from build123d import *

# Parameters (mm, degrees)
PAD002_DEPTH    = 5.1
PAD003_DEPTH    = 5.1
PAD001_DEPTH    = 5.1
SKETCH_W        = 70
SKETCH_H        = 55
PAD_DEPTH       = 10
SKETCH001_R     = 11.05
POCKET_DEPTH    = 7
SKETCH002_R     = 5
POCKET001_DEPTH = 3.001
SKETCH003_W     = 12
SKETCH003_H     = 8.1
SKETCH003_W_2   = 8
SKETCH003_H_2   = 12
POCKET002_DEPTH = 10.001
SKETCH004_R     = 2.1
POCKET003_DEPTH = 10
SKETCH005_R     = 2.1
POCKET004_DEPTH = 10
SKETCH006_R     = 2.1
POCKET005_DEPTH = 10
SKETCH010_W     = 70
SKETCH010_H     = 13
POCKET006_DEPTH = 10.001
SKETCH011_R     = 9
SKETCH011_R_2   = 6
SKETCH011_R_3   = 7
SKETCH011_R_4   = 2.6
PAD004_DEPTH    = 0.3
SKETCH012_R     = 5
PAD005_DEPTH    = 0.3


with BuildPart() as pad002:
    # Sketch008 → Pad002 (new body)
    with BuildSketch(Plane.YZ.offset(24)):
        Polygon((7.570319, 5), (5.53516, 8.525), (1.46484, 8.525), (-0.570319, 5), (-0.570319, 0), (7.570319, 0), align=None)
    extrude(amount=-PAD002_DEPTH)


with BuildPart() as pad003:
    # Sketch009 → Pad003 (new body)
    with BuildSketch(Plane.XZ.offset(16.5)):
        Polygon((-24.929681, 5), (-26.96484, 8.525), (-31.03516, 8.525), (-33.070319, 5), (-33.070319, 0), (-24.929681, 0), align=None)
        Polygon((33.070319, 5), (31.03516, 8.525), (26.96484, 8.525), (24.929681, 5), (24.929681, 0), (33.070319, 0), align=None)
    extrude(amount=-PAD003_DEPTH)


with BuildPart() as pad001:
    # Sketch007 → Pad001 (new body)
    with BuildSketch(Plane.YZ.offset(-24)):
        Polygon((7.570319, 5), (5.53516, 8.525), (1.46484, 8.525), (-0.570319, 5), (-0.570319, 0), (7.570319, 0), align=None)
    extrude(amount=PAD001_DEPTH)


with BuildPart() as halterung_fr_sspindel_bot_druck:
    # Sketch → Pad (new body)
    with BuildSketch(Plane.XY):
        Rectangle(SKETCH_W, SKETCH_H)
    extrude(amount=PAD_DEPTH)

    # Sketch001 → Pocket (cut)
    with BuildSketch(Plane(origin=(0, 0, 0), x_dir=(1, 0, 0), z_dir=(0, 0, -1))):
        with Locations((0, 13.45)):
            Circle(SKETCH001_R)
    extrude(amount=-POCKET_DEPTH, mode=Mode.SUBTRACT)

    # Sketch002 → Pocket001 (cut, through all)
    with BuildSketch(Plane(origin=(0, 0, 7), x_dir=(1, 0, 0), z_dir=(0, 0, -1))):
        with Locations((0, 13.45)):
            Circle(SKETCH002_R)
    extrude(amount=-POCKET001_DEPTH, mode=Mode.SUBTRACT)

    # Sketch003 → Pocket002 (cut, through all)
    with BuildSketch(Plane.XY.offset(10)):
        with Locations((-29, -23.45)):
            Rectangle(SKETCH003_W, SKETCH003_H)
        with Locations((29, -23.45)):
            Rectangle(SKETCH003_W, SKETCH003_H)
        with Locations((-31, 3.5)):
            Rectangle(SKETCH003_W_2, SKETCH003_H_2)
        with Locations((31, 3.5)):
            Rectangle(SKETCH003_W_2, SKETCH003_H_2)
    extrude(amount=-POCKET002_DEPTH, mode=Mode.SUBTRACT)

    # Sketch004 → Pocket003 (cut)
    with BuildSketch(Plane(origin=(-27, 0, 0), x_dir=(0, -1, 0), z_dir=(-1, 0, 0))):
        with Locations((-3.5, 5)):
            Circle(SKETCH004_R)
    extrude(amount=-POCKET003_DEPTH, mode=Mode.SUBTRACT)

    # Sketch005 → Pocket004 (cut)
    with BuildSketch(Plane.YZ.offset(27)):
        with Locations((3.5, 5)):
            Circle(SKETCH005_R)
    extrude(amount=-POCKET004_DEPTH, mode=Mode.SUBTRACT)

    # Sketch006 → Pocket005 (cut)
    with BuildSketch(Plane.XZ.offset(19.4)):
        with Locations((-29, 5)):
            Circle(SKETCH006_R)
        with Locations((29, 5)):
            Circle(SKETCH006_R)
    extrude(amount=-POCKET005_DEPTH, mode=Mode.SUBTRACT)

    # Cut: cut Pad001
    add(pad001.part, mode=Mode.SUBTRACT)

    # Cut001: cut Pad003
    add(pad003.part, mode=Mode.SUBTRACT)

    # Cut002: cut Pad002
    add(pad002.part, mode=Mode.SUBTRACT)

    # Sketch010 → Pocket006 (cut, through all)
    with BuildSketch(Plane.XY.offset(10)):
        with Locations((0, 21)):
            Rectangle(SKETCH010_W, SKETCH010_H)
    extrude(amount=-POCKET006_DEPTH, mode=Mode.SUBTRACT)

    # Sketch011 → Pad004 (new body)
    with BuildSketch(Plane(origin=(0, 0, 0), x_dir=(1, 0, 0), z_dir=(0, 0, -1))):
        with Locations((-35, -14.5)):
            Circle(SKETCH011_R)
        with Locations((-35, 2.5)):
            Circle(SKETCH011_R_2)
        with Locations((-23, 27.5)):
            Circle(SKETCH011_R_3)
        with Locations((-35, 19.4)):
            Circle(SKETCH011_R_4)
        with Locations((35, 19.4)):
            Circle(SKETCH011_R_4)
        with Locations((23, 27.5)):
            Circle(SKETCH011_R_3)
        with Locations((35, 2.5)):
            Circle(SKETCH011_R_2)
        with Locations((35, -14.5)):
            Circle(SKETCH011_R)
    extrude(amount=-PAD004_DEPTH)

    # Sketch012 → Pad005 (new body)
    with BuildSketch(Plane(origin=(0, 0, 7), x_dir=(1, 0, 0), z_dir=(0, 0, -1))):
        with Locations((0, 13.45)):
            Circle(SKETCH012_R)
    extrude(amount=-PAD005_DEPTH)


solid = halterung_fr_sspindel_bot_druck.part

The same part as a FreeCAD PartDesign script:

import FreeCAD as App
import Part
import Sketcher
Q = App.Units.Quantity


def add_polygon(sketch, points):
    """Adds a closed chain of lines whose ends are joined by coincident constraints."""
    first, n = sketch.GeometryCount, len(points)
    for a, b in zip(points, points[1:] + points[:1]):
        sketch.addGeometry(Part.LineSegment(App.Vector(*a, 0), App.Vector(*b, 0)), False)
    for i in range(n):
        sketch.addConstraint(Sketcher.Constraint("Coincident", first + i, 2, first + (i + 1) % n, 1))

doc = App.newDocument("Part")
body = doc.addObject("PartDesign::Body", "Body")

sketch1 = body.newObject("Sketcher::SketchObject", "Sketch")
sketch1.AttachmentSupport = (doc.getObject("YZ_Plane"), [""])
sketch1.MapMode = "FlatFace"
sketch1.AttachmentOffset = App.Placement(App.Vector(0, 0, 24), App.Rotation())
add_polygon(sketch1, [(7.6, 5), (5.5, 8.5), (1.5, 8.5), (-0.6, 5), (-0.6, 0), (7.6, 0)])
sketch1.addConstraint([
    Sketcher.Constraint("Horizontal", 1),
    Sketcher.Constraint("Vertical", 3),
    Sketcher.Constraint("Horizontal", 4),
    Sketcher.Constraint("Vertical", 5),
    Sketcher.Constraint("PointOnObject", 3, 2, -1),
    Sketcher.Constraint("Horizontal", 2, 2, 5, 2),
    Sketcher.Constraint("Equal", 0, 2),
    Sketcher.Constraint("DistanceY", 3, 2, 3, 1, 5.0),
    Sketcher.Constraint("Angle", 0, Q("119.999991 deg")),
    Sketcher.Constraint("DistanceY", -1, 1, 0, 2, 8.525),
    Sketcher.Constraint("DistanceX", 1, 2, 1, 1, 4.07032),
    Sketcher.Constraint("DistanceX", -1, 1, 0, 2, 5.53516),
])
pad1 = body.newObject("PartDesign::Pad", "Pad")
pad1.Profile = sketch1
pad1.Length = 5.1
pad1.Reversed = True
body2 = doc.addObject("PartDesign::Body", "Body001")
body2.AllowCompound = True

sketch2 = body2.newObject("Sketcher::SketchObject", "Sketch001")
sketch2.AttachmentSupport = (doc.getObject("XZ_Plane001"), [""])
sketch2.MapMode = "FlatFace"
sketch2.AttachmentOffset = App.Placement(App.Vector(0, 0, 16.5), App.Rotation())
add_polygon(sketch2, [(-24.9, 5), (-27, 8.5), (-31, 8.5), (-33.1, 5), (-33.1, 0), (-24.9, 0)])
add_polygon(sketch2, [(33.1, 5), (31, 8.5), (27, 8.5), (24.9, 5), (24.9, 0), (33.1, 0)])
sketch2.addConstraint([
    Sketcher.Constraint("Horizontal", 1),
    Sketcher.Constraint("Vertical", 3),
    Sketcher.Constraint("Horizontal", 4),
    Sketcher.Constraint("Vertical", 5),
    Sketcher.Constraint("Horizontal", 7),
    Sketcher.Constraint("Vertical", 9),
    Sketcher.Constraint("Horizontal", 10),
    Sketcher.Constraint("Vertical", 11),
    Sketcher.Constraint("Symmetric", 4, 2, 9, 2, -1, 1),
    Sketcher.Constraint("Symmetric", 1, 2, 6, 2, -2),
    Sketcher.Constraint("Symmetric", 3, 2, 10, 2, -2),
    Sketcher.Constraint("Parallel", 0, 6),
    Sketcher.Constraint("Parallel", 2, 8),
    Sketcher.Constraint("Horizontal", 2, 2, 5, 2),
    Sketcher.Constraint("Horizontal", 5, 2, 8, 2),
    Sketcher.Constraint("Horizontal", 8, 2, 11, 2),
    Sketcher.Constraint("DistanceY", 3, 2, 3, 1, 5.0),
    Sketcher.Constraint("Angle", 0, Q("119.999991 deg")),
    Sketcher.Constraint("DistanceX", 0, 2, 6, 2, 58.0),
    Sketcher.Constraint("DistanceY", -1, 1, 0, 2, 8.525),
    Sketcher.Constraint("DistanceX", 1, 2, 1, 1, 4.07032),
])
pad2 = body2.newObject("PartDesign::Pad", "Pad001")
pad2.Profile = sketch2
pad2.Length = 5.1
pad2.Reversed = True
body3 = doc.addObject("PartDesign::Body", "Body002")

sketch3 = body3.newObject("Sketcher::SketchObject", "Sketch002")
sketch3.AttachmentSupport = (doc.getObject("YZ_Plane002"), [""])
sketch3.MapMode = "FlatFace"
sketch3.AttachmentOffset = App.Placement(App.Vector(0, 0, -24), App.Rotation())
add_polygon(sketch3, [(7.6, 5), (5.5, 8.5), (1.5, 8.5), (-0.6, 5), (-0.6, 0), (7.6, 0)])
sketch3.addConstraint([
    Sketcher.Constraint("Horizontal", 1),
    Sketcher.Constraint("Vertical", 3),
    Sketcher.Constraint("Horizontal", 4),
    Sketcher.Constraint("Vertical", 5),
    Sketcher.Constraint("PointOnObject", 3, 2, -1),
    Sketcher.Constraint("Horizontal", 2, 2, 5, 2),
    Sketcher.Constraint("Equal", 0, 2),
    Sketcher.Constraint("DistanceY", 3, 2, 3, 1, 5.0),
    Sketcher.Constraint("Angle", 0, Q("119.999991 deg")),
    Sketcher.Constraint("DistanceY", -1, 1, 0, 2, 8.525),
    Sketcher.Constraint("DistanceX", 1, 2, 1, 1, 4.07032),
    Sketcher.Constraint("DistanceX", -1, 1, 0, 2, 5.53516),
])
pad3 = body3.newObject("PartDesign::Pad", "Pad002")
pad3.Profile = sketch3
pad3.Length = 5.1
body4 = doc.addObject("PartDesign::Body", "Body003")

sketch4 = body4.newObject("Sketcher::SketchObject", "Sketch003")
sketch4.AttachmentSupport = (doc.getObject("XY_Plane003"), [""])
sketch4.MapMode = "FlatFace"
add_polygon(sketch4, [(-35, 28), (-35, -28), (35, -28), (35, 28)])
sketch4.addConstraint([
    Sketcher.Constraint("Vertical", 0),
    Sketcher.Constraint("Horizontal", 1),
    Sketcher.Constraint("Vertical", 2),
    Sketcher.Constraint("Horizontal", 3),
    Sketcher.Constraint("Symmetric", 0, 2, 2, 2, -1, 1),
    Sketcher.Constraint("DistanceX", 1, 1, 1, 2, 70.0),
    Sketcher.Constraint("DistanceY", 0, 2, 0, 1, 55.0),
])
pad4 = body4.newObject("PartDesign::Pad", "Pad003")
pad4.Profile = sketch4
pad4.Length = 10

sketch5 = body4.newObject("Sketcher::SketchObject", "Sketch004")
sketch5.AttachmentSupport = (doc.getObject("XY_Plane003"), [""])
sketch5.MapMode = "FlatFace"
sketch5.addGeometry(Part.Circle(App.Vector(0, -13, 0), App.Vector(0, 0, 1), 11), False)
sketch5.addConstraint([
    Sketcher.Constraint("PointOnObject", 0, 3, -2),
    Sketcher.Constraint("Diameter", 0, 22.1),
    Sketcher.Constraint("DistanceY", 0, 3, -1, 1, 13.45),
])
pocket1 = body4.newObject("PartDesign::Pocket", "Pocket")
pocket1.Profile = sketch5
pocket1.Length = 7
pocket1.Reversed = True

sketch6 = body4.newObject("Sketcher::SketchObject", "Sketch005")
sketch6.AttachmentSupport = (doc.getObject("XY_Plane003"), [""])
sketch6.MapMode = "FlatFace"
sketch6.AttachmentOffset = App.Placement(App.Vector(0, 0, 7), App.Rotation())
sketch6.addGeometry(Part.Circle(App.Vector(0, -13, 0), App.Vector(0, 0, 1), 5), False)
sketch6.addConstraint([
    Sketcher.Constraint("PointOnObject", 0, 3, -2),
    Sketcher.Constraint("Diameter", 0, 10.0),
    Sketcher.Constraint("DistanceY", 0, 3, -1, 1, 13.45),
])
pocket2 = body4.newObject("PartDesign::Pocket", "Pocket001")
pocket2.Profile = sketch6
pocket2.Type = "ThroughAll"
pocket2.Reversed = True

sketch7 = body4.newObject("Sketcher::SketchObject", "Sketch006")
sketch7.AttachmentSupport = (doc.getObject("XY_Plane003"), [""])
sketch7.MapMode = "FlatFace"
sketch7.AttachmentOffset = App.Placement(App.Vector(0, 0, 10), App.Rotation())
add_polygon(sketch7, [(-35, -19), (-35, -28), (-23, -28), (-23, -19)])
add_polygon(sketch7, [(23, -19), (23, -28), (35, -28), (35, -19)])
add_polygon(sketch7, [(-35, 10), (-35, -2), (-27, -2), (-27, 10)])
add_polygon(sketch7, [(27, 10), (27, -2), (35, -2), (35, 10)])
sketch7.addConstraint([
    Sketcher.Constraint("Vertical", 0),
    Sketcher.Constraint("Horizontal", 1),
    Sketcher.Constraint("Vertical", 2),
    Sketcher.Constraint("Horizontal", 3),
    Sketcher.Constraint("Vertical", 4),
    Sketcher.Constraint("Horizontal", 5),
    Sketcher.Constraint("Vertical", 6),
    Sketcher.Constraint("Horizontal", 7),
    Sketcher.Constraint("Vertical", 8),
    Sketcher.Constraint("Horizontal", 9),
    Sketcher.Constraint("Vertical", 10),
    Sketcher.Constraint("Horizontal", 11),
    Sketcher.Constraint("Vertical", 12),
    Sketcher.Constraint("Horizontal", 13),
    Sketcher.Constraint("Vertical", 14),
    Sketcher.Constraint("Horizontal", 15),
    Sketcher.Constraint("Symmetric", 1, 2, 4, 2, -2),
    Sketcher.Constraint("Symmetric", 3, 2, 6, 2, -2),
    Sketcher.Constraint("Symmetric", 9, 2, 12, 2, -2),
    Sketcher.Constraint("Symmetric", 11, 2, 14, 2, -2),
    Sketcher.Constraint("Vertical", 3, 2, 8, 2),
    Sketcher.Constraint("Equal", 7, 8),
    Sketcher.Constraint("DistanceX", 1, 1, 1, 2, 12.0),
    Sketcher.Constraint("DistanceX", 9, 1, 9, 2, 8.0),
    Sketcher.Constraint("DistanceY", 0, 2, 0, 1, 8.1),
    Sketcher.Constraint("DistanceX", 0, 2, -1, 1, 35.0),
    Sketcher.Constraint("DistanceY", 0, 2, 8, 2, 25.0),
    Sketcher.Constraint("DistanceY", 0, 2, -1, 1, 27.5),
])
pocket3 = body4.newObject("PartDesign::Pocket", "Pocket002")
pocket3.Profile = sketch7
pocket3.Type = "ThroughAll"

sketch8 = body4.newObject("Sketcher::SketchObject", "Sketch007")
sketch8.AttachmentSupport = (doc.getObject("YZ_Plane003"), [""])
sketch8.MapMode = "FlatFace"
sketch8.AttachmentOffset = App.Placement(App.Vector(0, 0, -27), App.Rotation())
sketch8.addGeometry(Part.Circle(App.Vector(3.5, 5, 0), App.Vector(0, 0, 1), 2.1), False)
sketch8.addConstraint([
    Sketcher.Constraint("Diameter", 0, 4.2),
    Sketcher.Constraint("DistanceY", -1, 1, 0, 3, 5.0),
    Sketcher.Constraint("DistanceX", -1, 1, 0, 3, 3.5),
])
pocket4 = body4.newObject("PartDesign::Pocket", "Pocket003")
pocket4.Profile = sketch8
pocket4.Length = 10
pocket4.Reversed = True

sketch9 = body4.newObject("Sketcher::SketchObject", "Sketch008")
sketch9.AttachmentSupport = (doc.getObject("YZ_Plane003"), [""])
sketch9.MapMode = "FlatFace"
sketch9.AttachmentOffset = App.Placement(App.Vector(0, 0, 27), App.Rotation())
sketch9.addGeometry(Part.Circle(App.Vector(3.5, 5, 0), App.Vector(0, 0, 1), 2.1), False)
sketch9.addConstraint([
    Sketcher.Constraint("Diameter", 0, 4.2),
    Sketcher.Constraint("DistanceY", -1, 1, 0, 3, 5.0),
    Sketcher.Constraint("DistanceX", -1, 1, 0, 3, 3.5),
])
pocket5 = body4.newObject("PartDesign::Pocket", "Pocket004")
pocket5.Profile = sketch9
pocket5.Length = 10

sketch10 = body4.newObject("Sketcher::SketchObject", "Sketch009")
sketch10.AttachmentSupport = (doc.getObject("XZ_Plane003"), [""])
sketch10.MapMode = "FlatFace"
sketch10.AttachmentOffset = App.Placement(App.Vector(0, 0, 19.4), App.Rotation())
sketch10.addGeometry([
    Part.Circle(App.Vector(-29, 5, 0), App.Vector(0, 0, 1), 2.1),
    Part.Circle(App.Vector(29, 5, 0), App.Vector(0, 0, 1), 2.1),
], False)
sketch10.addConstraint([
    Sketcher.Constraint("Equal", 0, 1),
    Sketcher.Constraint("Symmetric", 0, 3, 1, 3, -2),
    Sketcher.Constraint("Diameter", 0, 4.2),
    Sketcher.Constraint("DistanceX", 0, 3, -1, 1, 29.0),
    Sketcher.Constraint("DistanceY", -1, 1, 0, 3, 5.0),
])
pocket6 = body4.newObject("PartDesign::Pocket", "Pocket005")
pocket6.Profile = sketch10
pocket6.Length = 10
doc.recompute()

boolean = body4.newObject("PartDesign::Boolean", "Boolean")
boolean.Type = "Cut"
boolean.addObjects([body3])
doc.recompute()

boolean2 = body4.newObject("PartDesign::Boolean", "Boolean001")
boolean2.Type = "Cut"
boolean2.addObjects([body2])
doc.recompute()

boolean3 = body4.newObject("PartDesign::Boolean", "Boolean002")
boolean3.Type = "Cut"
boolean3.addObjects([body])

sketch11 = body4.newObject("Sketcher::SketchObject", "Sketch010")
sketch11.AttachmentSupport = (doc.getObject("XY_Plane003"), [""])
sketch11.MapMode = "FlatFace"
sketch11.AttachmentOffset = App.Placement(App.Vector(0, 0, 10), App.Rotation())
add_polygon(sketch11, [(-35, 28), (-35, 14), (35, 14), (35, 28)])
sketch11.addConstraint([
    Sketcher.Constraint("Vertical", 0),
    Sketcher.Constraint("Horizontal", 1),
    Sketcher.Constraint("Vertical", 2),
    Sketcher.Constraint("Horizontal", 3),
    Sketcher.Constraint("DistanceX", 1, 1, 1, 2, 70.0),
    Sketcher.Constraint("DistanceY", 0, 2, 0, 1, 13.0),
    Sketcher.Constraint("DistanceX", 0, 2, -1, 1, 35.0),
    Sketcher.Constraint("DistanceY", -1, 1, 0, 2, 14.5),
])
pocket7 = body4.newObject("PartDesign::Pocket", "Pocket006")
pocket7.Profile = sketch11
pocket7.Type = "ThroughAll"

sketch12 = body4.newObject("Sketcher::SketchObject", "Sketch011")
sketch12.AttachmentSupport = (doc.getObject("XY_Plane003"), [""])
sketch12.MapMode = "FlatFace"
sketch12.addGeometry([
    Part.Circle(App.Vector(-35, 14.5, 0), App.Vector(0, 0, 1), 9),
    Part.Circle(App.Vector(-35, -2.5, 0), App.Vector(0, 0, 1), 6),
    Part.Circle(App.Vector(-23, -27.5, 0), App.Vector(0, 0, 1), 7),
    Part.Circle(App.Vector(-35, -19.4, 0), App.Vector(0, 0, 1), 2.6),
    Part.Circle(App.Vector(35, -19.4, 0), App.Vector(0, 0, 1), 2.6),
    Part.Circle(App.Vector(23, -27.5, 0), App.Vector(0, 0, 1), 7),
    Part.Circle(App.Vector(35, -2.5, 0), App.Vector(0, 0, 1), 6),
    Part.Circle(App.Vector(35, 14.5, 0), App.Vector(0, 0, 1), 9),
], False)
sketch12.addConstraint([
    Sketcher.Constraint("Equal", 3, 4),
    Sketcher.Constraint("Equal", 2, 5),
    Sketcher.Constraint("Equal", 1, 6),
    Sketcher.Constraint("Equal", 0, 7),
    Sketcher.Constraint("Symmetric", 3, 3, 4, 3, -2),
    Sketcher.Constraint("Symmetric", 2, 3, 5, 3, -2),
    Sketcher.Constraint("Symmetric", 1, 3, 6, 3, -2),
    Sketcher.Constraint("Symmetric", 0, 3, 7, 3, -2),
    Sketcher.Constraint("Vertical", 0, 3, 1, 3),
    Sketcher.Constraint("Vertical", 1, 3, 3, 3),
    Sketcher.Constraint("Diameter", 0, 18.0),
    Sketcher.Constraint("Diameter", 1, 12.0),
    Sketcher.Constraint("Diameter", 2, 14.0),
    Sketcher.Constraint("Diameter", 3, 5.2),
    Sketcher.Constraint("DistanceX", 0, 3, -1, 1, 35.0),
    Sketcher.Constraint("DistanceX", 2, 3, -1, 1, 23.0),
    Sketcher.Constraint("DistanceY", 1, 3, 0, 3, 17.0),
    Sketcher.Constraint("DistanceY", 2, 3, 1, 3, 25.0),
    Sketcher.Constraint("DistanceY", -1, 1, 0, 3, 14.5),
    Sketcher.Constraint("DistanceY", 3, 3, -1, 1, 19.4),
])
pad5 = body4.newObject("PartDesign::Pad", "Pad004")
pad5.Profile = sketch12
pad5.Length = 0.3

sketch13 = body4.newObject("Sketcher::SketchObject", "Sketch012")
sketch13.AttachmentSupport = (doc.getObject("XY_Plane003"), [""])
sketch13.MapMode = "FlatFace"
sketch13.AttachmentOffset = App.Placement(App.Vector(0, 0, 7), App.Rotation())
sketch13.addGeometry(Part.Circle(App.Vector(0, -13, 0), App.Vector(0, 0, 1), 5), False)
sketch13.addConstraint([
    Sketcher.Constraint("PointOnObject", 0, 3, -2),
    Sketcher.Constraint("Diameter", 0, 10.0),
    Sketcher.Constraint("DistanceY", 0, 3, -1, 1, 13.45),
])
pad6 = body4.newObject("PartDesign::Pad", "Pad005")
pad6.Profile = sketch13
pad6.Length = 0.3

doc.recompute()
